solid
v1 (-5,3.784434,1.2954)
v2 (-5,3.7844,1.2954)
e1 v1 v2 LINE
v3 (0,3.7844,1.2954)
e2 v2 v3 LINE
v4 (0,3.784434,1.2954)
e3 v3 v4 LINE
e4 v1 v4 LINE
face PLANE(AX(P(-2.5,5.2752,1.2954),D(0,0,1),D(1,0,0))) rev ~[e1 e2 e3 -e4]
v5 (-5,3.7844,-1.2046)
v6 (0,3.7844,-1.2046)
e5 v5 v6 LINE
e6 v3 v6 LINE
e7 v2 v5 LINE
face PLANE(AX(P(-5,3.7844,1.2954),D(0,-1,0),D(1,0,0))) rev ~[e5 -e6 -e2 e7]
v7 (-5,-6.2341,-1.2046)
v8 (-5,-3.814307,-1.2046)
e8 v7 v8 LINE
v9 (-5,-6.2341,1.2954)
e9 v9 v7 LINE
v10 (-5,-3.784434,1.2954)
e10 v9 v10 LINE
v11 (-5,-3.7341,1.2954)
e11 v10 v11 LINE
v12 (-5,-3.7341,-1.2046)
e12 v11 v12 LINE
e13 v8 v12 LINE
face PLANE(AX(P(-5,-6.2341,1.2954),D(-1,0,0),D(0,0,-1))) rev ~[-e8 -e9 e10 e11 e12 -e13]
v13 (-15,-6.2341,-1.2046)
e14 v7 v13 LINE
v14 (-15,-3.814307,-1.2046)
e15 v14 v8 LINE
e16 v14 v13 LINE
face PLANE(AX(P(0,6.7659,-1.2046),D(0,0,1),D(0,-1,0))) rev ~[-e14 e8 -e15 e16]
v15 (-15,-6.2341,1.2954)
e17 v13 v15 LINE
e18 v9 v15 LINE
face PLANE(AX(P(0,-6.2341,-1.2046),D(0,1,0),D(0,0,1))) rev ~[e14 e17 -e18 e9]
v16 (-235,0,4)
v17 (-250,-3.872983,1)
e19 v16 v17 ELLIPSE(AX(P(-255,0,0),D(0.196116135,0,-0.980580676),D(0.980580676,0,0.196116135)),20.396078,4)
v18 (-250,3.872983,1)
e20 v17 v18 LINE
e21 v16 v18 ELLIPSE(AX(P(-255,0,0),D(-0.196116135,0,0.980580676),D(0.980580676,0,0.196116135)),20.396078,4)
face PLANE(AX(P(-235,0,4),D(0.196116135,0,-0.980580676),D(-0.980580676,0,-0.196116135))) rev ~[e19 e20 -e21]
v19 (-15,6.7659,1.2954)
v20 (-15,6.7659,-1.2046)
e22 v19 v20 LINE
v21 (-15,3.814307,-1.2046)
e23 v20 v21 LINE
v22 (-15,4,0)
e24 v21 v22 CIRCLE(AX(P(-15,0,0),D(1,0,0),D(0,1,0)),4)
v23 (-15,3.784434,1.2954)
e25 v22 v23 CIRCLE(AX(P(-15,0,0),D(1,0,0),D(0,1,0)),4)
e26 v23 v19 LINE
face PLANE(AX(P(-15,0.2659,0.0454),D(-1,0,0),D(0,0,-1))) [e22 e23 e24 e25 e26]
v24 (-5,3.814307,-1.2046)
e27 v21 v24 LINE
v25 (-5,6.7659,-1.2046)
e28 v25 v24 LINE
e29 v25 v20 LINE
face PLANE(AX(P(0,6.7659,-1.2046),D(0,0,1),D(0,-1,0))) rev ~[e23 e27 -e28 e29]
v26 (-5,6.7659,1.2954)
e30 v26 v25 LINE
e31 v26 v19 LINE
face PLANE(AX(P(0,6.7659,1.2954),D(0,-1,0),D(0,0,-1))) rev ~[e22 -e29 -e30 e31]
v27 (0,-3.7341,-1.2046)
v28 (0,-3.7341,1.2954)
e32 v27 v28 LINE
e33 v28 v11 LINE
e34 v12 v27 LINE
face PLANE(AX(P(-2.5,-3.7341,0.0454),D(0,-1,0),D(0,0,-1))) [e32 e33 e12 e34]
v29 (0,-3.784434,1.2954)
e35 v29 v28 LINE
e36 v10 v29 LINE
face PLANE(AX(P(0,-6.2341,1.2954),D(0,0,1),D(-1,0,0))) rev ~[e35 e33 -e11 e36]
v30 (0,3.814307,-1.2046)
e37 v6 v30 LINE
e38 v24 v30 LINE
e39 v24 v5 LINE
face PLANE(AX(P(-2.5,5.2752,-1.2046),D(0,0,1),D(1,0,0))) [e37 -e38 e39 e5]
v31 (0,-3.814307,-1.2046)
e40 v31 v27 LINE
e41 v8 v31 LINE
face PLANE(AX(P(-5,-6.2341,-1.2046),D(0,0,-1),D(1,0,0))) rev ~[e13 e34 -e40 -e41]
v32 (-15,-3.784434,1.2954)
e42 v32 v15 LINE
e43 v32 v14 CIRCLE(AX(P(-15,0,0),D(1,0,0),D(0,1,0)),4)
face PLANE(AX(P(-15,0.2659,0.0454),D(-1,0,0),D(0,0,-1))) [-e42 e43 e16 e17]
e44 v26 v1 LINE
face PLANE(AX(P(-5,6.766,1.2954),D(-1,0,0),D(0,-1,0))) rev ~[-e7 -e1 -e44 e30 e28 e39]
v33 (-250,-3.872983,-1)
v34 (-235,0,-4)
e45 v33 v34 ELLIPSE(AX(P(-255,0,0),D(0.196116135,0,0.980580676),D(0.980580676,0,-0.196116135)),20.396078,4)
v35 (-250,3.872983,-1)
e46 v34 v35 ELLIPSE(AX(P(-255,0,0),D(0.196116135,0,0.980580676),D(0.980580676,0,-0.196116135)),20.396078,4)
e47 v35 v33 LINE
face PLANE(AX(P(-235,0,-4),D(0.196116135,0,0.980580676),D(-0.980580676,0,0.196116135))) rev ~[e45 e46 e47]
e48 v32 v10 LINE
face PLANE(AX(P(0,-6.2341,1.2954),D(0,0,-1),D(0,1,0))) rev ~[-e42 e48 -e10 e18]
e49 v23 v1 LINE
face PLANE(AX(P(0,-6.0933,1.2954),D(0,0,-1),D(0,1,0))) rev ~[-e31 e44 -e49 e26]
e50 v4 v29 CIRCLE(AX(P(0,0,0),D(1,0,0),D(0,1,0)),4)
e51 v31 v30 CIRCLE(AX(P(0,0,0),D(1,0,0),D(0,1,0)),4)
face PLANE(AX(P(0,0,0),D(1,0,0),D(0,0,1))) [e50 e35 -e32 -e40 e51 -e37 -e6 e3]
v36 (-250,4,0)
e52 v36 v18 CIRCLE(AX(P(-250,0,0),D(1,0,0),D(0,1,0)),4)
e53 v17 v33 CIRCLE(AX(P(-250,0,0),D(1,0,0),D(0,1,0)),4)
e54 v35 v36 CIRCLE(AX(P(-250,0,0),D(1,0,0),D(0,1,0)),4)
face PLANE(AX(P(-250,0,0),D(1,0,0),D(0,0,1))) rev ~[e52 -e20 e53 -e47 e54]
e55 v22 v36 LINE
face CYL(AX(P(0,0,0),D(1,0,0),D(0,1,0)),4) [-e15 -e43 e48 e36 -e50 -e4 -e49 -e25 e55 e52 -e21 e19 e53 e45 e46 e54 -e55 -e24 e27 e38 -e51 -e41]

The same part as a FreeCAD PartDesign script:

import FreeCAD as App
import Part
import Sketcher
from FreeCAD import Vector
Q = App.Units.Quantity

doc = App.newDocument("Part")
body = doc.addObject("PartDesign::Body", "Body")

sketch1 = body.newObject("Sketcher::SketchObject", "Sketch")
sketch1.AttachmentSupport = (doc.getObject("YZ_Plane"), [""])
sketch1.MapMode = "FlatFace"
sketch1.addGeometry(Part.Circle(Vector(0, 0, 0), Vector(0, 0, 1), 4), False)
sketch1.addConstraint([
    Sketcher.Constraint("Coincident", 0, 3, -1, 1),
    Sketcher.Constraint("Diameter", 0, Q("8 mm")),
])
pad1 = body.newObject("PartDesign::Pad", "Pad")
pad1.Profile = sketch1
pad1.Length = 250
pad1.Reversed = True

sketch2 = body.newObject("Sketcher::SketchObject", "Sketch001")
sketch2.AttachmentSupport = (doc.getObject("YZ_Plane"), [""])
sketch2.MapMode = "FlatFace"
sketch2.addGeometry([
    Part.LineSegment(Vector(6.8, 1.3, 0), Vector(-6.2, 1.3, 0)),
    Part.LineSegment(Vector(-6.2, 1.3, 0), Vector(-6.2, -1.2, 0)),
    Part.LineSegment(Vector(-6.2, -1.2, 0), Vector(6.8, -1.2, 0)),
    Part.LineSegment(Vector(6.8, -1.2, 0), Vector(6.8, 1.3, 0)),
], False)
sketch2.addConstraint([
    Sketcher.Constraint("Coincident", 0, 2, 1, 1),
    Sketcher.Constraint("Coincident", 1, 2, 2, 1),
    Sketcher.Constraint("Coincident", 2, 2, 3, 1),
    Sketcher.Constraint("Coincident", 3, 2, 0, 1),
    Sketcher.Constraint("Horizontal", 0),
    Sketcher.Constraint("Vertical", 1),
    Sketcher.Constraint("Horizontal", 2),
    Sketcher.Constraint("Vertical", 3),
    Sketcher.Constraint("DistanceX", 0, 2, 0, 1, Q("13 mm")),
    Sketcher.Constraint("DistanceY", 1, 2, 1, 1, Q("2.5 mm")),
    Sketcher.Constraint("DistanceX", -1, 1, 2, 2, Q("6.766 mm")),
    Sketcher.Constraint("DistanceY", -1, 1, 0, 2, Q("1.2954 mm")),
])
pad2 = body.newObject("PartDesign::Pad", "Pad001")
pad2.Profile = sketch2
pad2.Length = 15
pad2.Reversed = True

sketch3 = body.newObject("Sketcher::SketchObject", "Sketch002")
sketch3.AttachmentSupport = (doc.getObject("XZ_Plane"), [""])
sketch3.MapMode = "FlatFace"
sketch3.AttachmentOffset = App.Placement(Vector(0, 0, 6.2341), App.Rotation())
sketch3.addGeometry([
    Part.LineSegment(Vector(0, -1.2, 0), Vector(0, 1.3, 0)),
    Part.LineSegment(Vector(0, 1.3, 0), Vector(-5, 1.3, 0)),
    Part.LineSegment(Vector(-5, 1.3, 0), Vector(-5, -1.2, 0)),
    Part.LineSegment(Vector(-5, -1.2, 0), Vector(0, -1.2, 0)),
], False)
sketch3.addConstraint([
    Sketcher.Constraint("Coincident", 0, 2, 1, 1),
    Sketcher.Constraint("Coincident", 1, 2, 2, 1),
    Sketcher.Constraint("Coincident", 2, 2, 3, 1),
    Sketcher.Constraint("Coincident", 3, 2, 0, 1),
    Sketcher.Constraint("Vertical", 0),
    Sketcher.Constraint("Horizontal", 1),
    Sketcher.Constraint("Vertical", 2),
    Sketcher.Constraint("Horizontal", 3),
    Sketcher.Constraint("PointOnObject", 0, 2, -2),
    Sketcher.Constraint("DistanceX", 1, 2, 1, 1, Q("5 mm")),
    Sketcher.Constraint("DistanceY", 0, 1, 0, 2, Q("2.5 mm")),
    Sketcher.Constraint("DistanceY", -1, 1, 0, 2, Q("1.2954 mm")),
])
pocket1 = body.newObject("PartDesign::Pocket", "Pocket")
pocket1.Profile = sketch3
pocket1.Length = 2.5

sketch4 = body.newObject("Sketcher::SketchObject", "Sketch003")
sketch4.AttachmentSupport = (doc.getObject("XY_Plane"), [""])
sketch4.MapMode = "FlatFace"
sketch4.AttachmentOffset = App.Placement(Vector(0, 0, 1.2954), App.Rotation())
sketch4.addGeometry([
    Part.LineSegment(Vector(0, 3.8, 0), Vector(0, 6.8, 0)),
    Part.LineSegment(Vector(0, 6.8, 0), Vector(-5, 6.8, 0)),
    Part.LineSegment(Vector(-5, 6.8, 0), Vector(-5, 3.8, 0)),
    Part.LineSegment(Vector(-5, 3.8, 0), Vector(0, 3.8, 0)),
], False)
sketch4.addConstraint([
    Sketcher.Constraint("Coincident", 0, 2, 1, 1),
    Sketcher.Constraint("Coincident", 1, 2, 2, 1),
    Sketcher.Constraint("Coincident", 2, 2, 3, 1),
    Sketcher.Constraint("Coincident", 3, 2, 0, 1),
    Sketcher.Constraint("Vertical", 0),
    Sketcher.Constraint("Horizontal", 1),
    Sketcher.Constraint("Vertical", 2),
    Sketcher.Constraint("Horizontal", 3),
    Sketcher.Constraint("PointOnObject", 0, 2, -2),
    Sketcher.Constraint("DistanceX", 1, 2, 1, 1, Q("5 mm")),
    Sketcher.Constraint("DistanceY", 0, 1, 0, 2, Q("2.9816 mm")),
    Sketcher.Constraint("DistanceY", -1, 1, 0, 2, Q("6.766 mm")),
])
pocket2 = body.newObject("PartDesign::Pocket", "Pocket001")
pocket2.Profile = sketch4
pocket2.Length = 2.5

sketch5 = body.newObject("Sketcher::SketchObject", "Sketch004")
sketch5.AttachmentSupport = (doc.getObject("XZ_Plane"), [""])
sketch5.MapMode = "FlatFace"
sketch5.addGeometry([
    Part.LineSegment(Vector(-235, 4, 0), Vector(-250, 4, 0)),
    Part.LineSegment(Vector(-250, 4, 0), Vector(-250, 1, 0)),
    Part.LineSegment(Vector(-250, 1, 0), Vector(-235, 4, 0)),
], False)
sketch5.addConstraint([
    Sketcher.Constraint("Coincident", 0, 2, 1, 1),
    Sketcher.Constraint("Coincident", 1, 2, 2, 1),
    Sketcher.Constraint("Coincident", 2, 2, 0, 1),
    Sketcher.Constraint("Horizontal", 0),
    Sketcher.Constraint("Vertical", 1),
    Sketcher.Constraint("DistanceX", 0, 2, -1, 1, Q("250 mm")),
    Sketcher.Constraint("DistanceX", 2, 2, -1, 1, Q("235 mm")),
    Sketcher.Constraint("DistanceY", 1, 2, 1, 1, Q("3 mm")),
    Sketcher.Constraint("DistanceY", -1, 1, 0, 2, Q("4 mm")),
])
pocket3 = body.newObject("PartDesign::Pocket", "Pocket002")
pocket3.Profile = sketch5
pocket3.Length = 21.4935

sketch6 = body.newObject("Sketcher::SketchObject", "Sketch005")
sketch6.AttachmentSupport = (doc.getObject("XZ_Plane"), [""])
sketch6.MapMode = "FlatFace"
sketch6.addGeometry([
    Part.LineSegment(Vector(-235, 4, 0), Vector(-250, 4, 0)),
    Part.LineSegment(Vector(-250, 4, 0), Vector(-250, 1, 0)),
    Part.LineSegment(Vector(-250, 1, 0), Vector(-235, 4, 0)),
], False)
sketch6.addConstraint([
    Sketcher.Constraint("Coincident", 0, 2, 1, 1),
    Sketcher.Constraint("Coincident", 1, 2, 2, 1),
    Sketcher.Constraint("Coincident", 2, 2, 0, 1),
    Sketcher.Constraint("Horizontal", 0),
    Sketcher.Constraint("Vertical", 1),
    Sketcher.Constraint("DistanceX", 0, 2, -1, 1, Q("250 mm")),
    Sketcher.Constraint("DistanceX", 0, 2, 0, 1, Q("15 mm")),
    Sketcher.Constraint("DistanceY", 1, 2, 1, 1, Q("3 mm")),
    Sketcher.Constraint("DistanceY", -1, 1, 0, 2, Q("4 mm")),
])
pocket4 = body.newObject("PartDesign::Pocket", "Pocket003")
pocket4.Profile = sketch6
pocket4.Length = 51.5804
pocket4.Reversed = True

sketch7 = body.newObject("Sketcher::SketchObject", "Sketch006")
sketch7.AttachmentSupport = (doc.getObject("XZ_Plane"), [""])
sketch7.MapMode = "FlatFace"
sketch7.addGeometry([
    Part.LineSegment(Vector(-250, -1, 0), Vector(-250, -4, 0)),
    Part.LineSegment(Vector(-250, -4, 0), Vector(-235, -4, 0)),
    Part.LineSegment(Vector(-235, -4, 0), Vector(-250, -1, 0)),
], False)
sketch7.addConstraint([
    Sketcher.Constraint("Coincident", 0, 2, 1, 1),
    Sketcher.Constraint("Coincident", 1, 2, 2, 1),
    Sketcher.Constraint("Coincident", 2, 2, 0, 1),
    Sketcher.Constraint("Vertical", 0),
    Sketcher.Constraint("Horizontal", 1),
    Sketcher.Constraint("DistanceX", 0, 2, -1, 1, Q("250 mm")),
    Sketcher.Constraint("DistanceX", 1, 2, -1, 1, Q("235 mm")),
    Sketcher.Constraint("DistanceY", 0, 2, 0, 1, Q("3 mm")),
    Sketcher.Constraint("DistanceY", 0, 2, -1, 1, Q("4 mm")),
])
pocket5 = body.newObject("PartDesign::Pocket", "Pocket004")
pocket5.Profile = sketch7
pocket5.Length = 13.6842
pocket5.Reversed = True

sketch8 = body.newObject("Sketcher::SketchObject", "Sketch007")
sketch8.AttachmentSupport = (doc.getObject("XZ_Plane"), [""])
sketch8.MapMode = "FlatFace"
sketch8.addGeometry([
    Part.LineSegment(Vector(-235, -4, 0), Vector(-250, -1, 0)),
    Part.LineSegment(Vector(-250, -1, 0), Vector(-250, -4, 0)),
    Part.LineSegment(Vector(-250, -4, 0), Vector(-235, -4, 0)),
], False)
sketch8.addConstraint([
    Sketcher.Constraint("Coincident", 0, 2, 1, 1),
    Sketcher.Constraint("Coincident", 1, 2, 2, 1),
    Sketcher.Constraint("Coincident", 2, 2, 0, 1),
    Sketcher.Constraint("Vertical", 1),
    Sketcher.Constraint("Horizontal", 2),
    Sketcher.Constraint("DistanceX", 2, 1, 2, 2, Q("15 mm")),
    Sketcher.Constraint("DistanceY", 1, 2, 1, 1, Q("3 mm")),
    Sketcher.Constraint("DistanceX", 0, 2, -1, 1, Q("250 mm")),
    Sketcher.Constraint("DistanceY", 0, 2, -1, 1, Q("1 mm")),
])
pocket6 = body.newObject("PartDesign::Pocket", "Pocket005")
pocket6.Profile = sketch8
pocket6.Length = 26.2163

doc.recompute()
